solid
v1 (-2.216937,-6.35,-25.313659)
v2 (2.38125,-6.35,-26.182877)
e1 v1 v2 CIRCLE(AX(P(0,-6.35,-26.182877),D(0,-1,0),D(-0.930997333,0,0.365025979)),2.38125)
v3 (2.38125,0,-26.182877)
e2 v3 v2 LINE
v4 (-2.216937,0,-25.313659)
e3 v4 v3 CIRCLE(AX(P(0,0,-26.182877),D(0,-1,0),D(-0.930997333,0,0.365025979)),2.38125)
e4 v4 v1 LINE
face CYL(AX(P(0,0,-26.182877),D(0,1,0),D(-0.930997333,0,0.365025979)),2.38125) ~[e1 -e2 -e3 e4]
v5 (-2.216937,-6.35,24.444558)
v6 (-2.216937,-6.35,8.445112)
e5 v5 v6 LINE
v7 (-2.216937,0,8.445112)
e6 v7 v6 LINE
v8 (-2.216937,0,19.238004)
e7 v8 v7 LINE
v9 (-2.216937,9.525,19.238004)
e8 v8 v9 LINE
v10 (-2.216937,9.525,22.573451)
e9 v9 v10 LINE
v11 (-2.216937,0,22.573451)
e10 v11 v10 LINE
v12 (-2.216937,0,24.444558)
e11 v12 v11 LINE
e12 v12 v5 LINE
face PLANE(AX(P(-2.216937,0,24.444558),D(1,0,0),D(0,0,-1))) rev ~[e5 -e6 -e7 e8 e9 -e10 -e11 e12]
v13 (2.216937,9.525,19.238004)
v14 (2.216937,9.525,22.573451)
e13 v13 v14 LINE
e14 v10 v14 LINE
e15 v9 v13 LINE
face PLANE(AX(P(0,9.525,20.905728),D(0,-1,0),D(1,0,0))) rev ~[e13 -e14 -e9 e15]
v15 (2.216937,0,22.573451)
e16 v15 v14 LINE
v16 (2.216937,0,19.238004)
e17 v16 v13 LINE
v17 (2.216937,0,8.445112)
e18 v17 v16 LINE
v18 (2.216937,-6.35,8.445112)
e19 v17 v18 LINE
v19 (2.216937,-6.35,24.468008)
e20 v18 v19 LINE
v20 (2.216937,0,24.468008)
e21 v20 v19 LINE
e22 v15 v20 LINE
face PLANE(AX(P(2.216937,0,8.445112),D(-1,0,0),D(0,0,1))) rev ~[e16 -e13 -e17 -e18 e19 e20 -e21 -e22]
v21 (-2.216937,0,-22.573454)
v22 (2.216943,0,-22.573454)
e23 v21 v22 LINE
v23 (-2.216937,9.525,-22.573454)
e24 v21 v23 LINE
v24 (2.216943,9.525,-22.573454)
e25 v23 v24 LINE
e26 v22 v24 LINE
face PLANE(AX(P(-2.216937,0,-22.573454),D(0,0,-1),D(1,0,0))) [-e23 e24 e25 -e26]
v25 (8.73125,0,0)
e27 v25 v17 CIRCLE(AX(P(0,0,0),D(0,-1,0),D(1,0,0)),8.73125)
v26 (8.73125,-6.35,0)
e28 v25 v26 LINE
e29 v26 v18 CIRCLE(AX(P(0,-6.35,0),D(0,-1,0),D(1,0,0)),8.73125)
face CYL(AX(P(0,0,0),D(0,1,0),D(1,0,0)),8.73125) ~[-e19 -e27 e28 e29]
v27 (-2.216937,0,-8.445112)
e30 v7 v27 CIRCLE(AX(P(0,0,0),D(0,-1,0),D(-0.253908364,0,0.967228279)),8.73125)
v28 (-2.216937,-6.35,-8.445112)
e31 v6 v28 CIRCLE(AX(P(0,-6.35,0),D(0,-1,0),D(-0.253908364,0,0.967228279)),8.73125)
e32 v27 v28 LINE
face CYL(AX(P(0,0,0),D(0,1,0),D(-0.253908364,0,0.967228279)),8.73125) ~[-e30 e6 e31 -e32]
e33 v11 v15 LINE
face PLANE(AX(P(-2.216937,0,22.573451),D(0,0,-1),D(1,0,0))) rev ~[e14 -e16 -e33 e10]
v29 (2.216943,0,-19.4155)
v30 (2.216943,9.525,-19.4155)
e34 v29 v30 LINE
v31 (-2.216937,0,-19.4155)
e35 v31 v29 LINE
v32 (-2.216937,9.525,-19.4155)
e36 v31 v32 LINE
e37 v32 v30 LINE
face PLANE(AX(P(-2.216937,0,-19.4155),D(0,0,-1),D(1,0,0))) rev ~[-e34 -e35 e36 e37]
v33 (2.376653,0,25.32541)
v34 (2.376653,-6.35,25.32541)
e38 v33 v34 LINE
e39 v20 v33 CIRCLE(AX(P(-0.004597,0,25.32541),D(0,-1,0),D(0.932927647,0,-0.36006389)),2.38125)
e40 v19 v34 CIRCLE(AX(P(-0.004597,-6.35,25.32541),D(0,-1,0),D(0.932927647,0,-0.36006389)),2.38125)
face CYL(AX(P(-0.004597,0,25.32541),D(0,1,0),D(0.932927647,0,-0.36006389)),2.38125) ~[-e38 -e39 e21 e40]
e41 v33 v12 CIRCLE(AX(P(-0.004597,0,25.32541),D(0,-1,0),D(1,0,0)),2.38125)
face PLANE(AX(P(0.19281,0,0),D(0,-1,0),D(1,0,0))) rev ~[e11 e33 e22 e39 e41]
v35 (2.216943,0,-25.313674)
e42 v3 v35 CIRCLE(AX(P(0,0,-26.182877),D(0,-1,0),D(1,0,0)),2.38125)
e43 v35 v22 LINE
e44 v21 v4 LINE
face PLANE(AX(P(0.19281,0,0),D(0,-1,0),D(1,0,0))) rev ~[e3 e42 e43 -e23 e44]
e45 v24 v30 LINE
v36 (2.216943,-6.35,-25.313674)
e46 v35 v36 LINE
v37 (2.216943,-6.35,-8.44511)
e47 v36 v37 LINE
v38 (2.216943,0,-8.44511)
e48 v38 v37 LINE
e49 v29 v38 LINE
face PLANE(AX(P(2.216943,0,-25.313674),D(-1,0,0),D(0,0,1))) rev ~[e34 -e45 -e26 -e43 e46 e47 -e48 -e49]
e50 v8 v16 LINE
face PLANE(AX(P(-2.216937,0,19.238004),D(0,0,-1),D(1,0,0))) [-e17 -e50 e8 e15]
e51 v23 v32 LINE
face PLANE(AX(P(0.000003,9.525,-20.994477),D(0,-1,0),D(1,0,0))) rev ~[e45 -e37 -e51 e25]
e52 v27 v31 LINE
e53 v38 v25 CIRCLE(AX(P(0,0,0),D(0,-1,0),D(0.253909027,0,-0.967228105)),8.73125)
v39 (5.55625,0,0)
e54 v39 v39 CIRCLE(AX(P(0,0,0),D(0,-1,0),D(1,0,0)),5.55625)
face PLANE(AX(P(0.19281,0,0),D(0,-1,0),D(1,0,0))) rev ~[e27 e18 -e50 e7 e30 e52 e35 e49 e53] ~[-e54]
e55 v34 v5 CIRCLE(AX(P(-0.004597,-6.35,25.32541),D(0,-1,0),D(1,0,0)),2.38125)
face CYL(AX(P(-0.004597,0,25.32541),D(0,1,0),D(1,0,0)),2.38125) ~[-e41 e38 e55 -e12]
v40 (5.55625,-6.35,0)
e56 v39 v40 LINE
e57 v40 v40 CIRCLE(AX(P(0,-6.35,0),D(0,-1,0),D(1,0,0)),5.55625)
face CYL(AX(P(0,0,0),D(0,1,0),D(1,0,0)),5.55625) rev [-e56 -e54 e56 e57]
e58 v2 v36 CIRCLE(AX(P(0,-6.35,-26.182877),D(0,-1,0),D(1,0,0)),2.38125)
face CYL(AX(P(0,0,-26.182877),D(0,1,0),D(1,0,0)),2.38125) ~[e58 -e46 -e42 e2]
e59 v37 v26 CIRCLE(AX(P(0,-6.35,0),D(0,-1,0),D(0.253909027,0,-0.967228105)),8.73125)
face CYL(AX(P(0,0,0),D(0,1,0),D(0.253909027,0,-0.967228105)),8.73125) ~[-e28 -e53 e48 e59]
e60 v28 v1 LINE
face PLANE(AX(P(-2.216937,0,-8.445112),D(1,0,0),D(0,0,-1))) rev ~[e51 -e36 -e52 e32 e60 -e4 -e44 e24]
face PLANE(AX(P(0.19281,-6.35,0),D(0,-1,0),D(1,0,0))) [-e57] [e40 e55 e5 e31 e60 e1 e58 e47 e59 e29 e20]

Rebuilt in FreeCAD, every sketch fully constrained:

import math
import FreeCAD as App
import Part
import Sketcher
Q = App.Units.Quantity

doc = App.newDocument("Part")
body = doc.addObject("PartDesign::Body", "Body")

# Sketch on XZ plane
sketch1 = doc.addObject("Sketcher::SketchObject", "Sketch")
body.addObject(sketch1)
sketch1.AttachmentSupport = (doc.XZ_Plane, [""])
sketch1.MapMode = "FlatFace"
sketch1.addGeometry(Part.ArcOfCircle(Part.Circle(App.Vector(0, 0, 0), App.Vector(0, 0, 1), 8.7), math.radians(-75), math.radians(0)), False)
sketch1.addGeometry(Part.ArcOfCircle(Part.Circle(App.Vector(0, 0, 0), App.Vector(0, 0, 1), 8.7), math.radians(0), math.radians(75)), False)
sketch1.addGeometry(Part.LineSegment(App.Vector(2.2, 8.4, 0), App.Vector(2.2, 24.5, 0)), False)
sketch1.addGeometry(Part.ArcOfCircle(Part.Circle(App.Vector(0, 25.3, 0), App.Vector(0, 0, 1), 2.4), math.radians(-21), math.radians(0)), False)
sketch1.addGeometry(Part.ArcOfCircle(Part.Circle(App.Vector(0, 25.3, 0), App.Vector(0, 0, 1), 2.4), math.radians(0), math.radians(202)), False)
sketch1.addGeometry(Part.LineSegment(App.Vector(-2.2, 24.4, 0), App.Vector(-2.2, 8.4, 0)), False)
sketch1.addGeometry(Part.ArcOfCircle(Part.Circle(App.Vector(0, 0, 0), App.Vector(0, 0, 1), 8.7), math.radians(105), math.radians(255)), False)
sketch1.addGeometry(Part.LineSegment(App.Vector(-2.2, -8.4, 0), App.Vector(-2.2, -25.3, 0)), False)
sketch1.addGeometry(Part.ArcOfCircle(Part.Circle(App.Vector(0, -26.2, 0), App.Vector(0, 0, 1), 2.4), math.radians(159), math.radians(360)), False)
sketch1.addGeometry(Part.ArcOfCircle(Part.Circle(App.Vector(0, -26.2, 0), App.Vector(0, 0, 1), 2.4), math.radians(0), math.radians(21)), False)
sketch1.addGeometry(Part.LineSegment(App.Vector(2.2, -25.3, 0), App.Vector(2.2, -8.4, 0)), False)
sketch1.addGeometry(Part.Circle(App.Vector(0, 0, 0), App.Vector(0, 0, 1), 5.6), False)
sketch1.addConstraint(Sketcher.Constraint("Tangent", 0, 2, 1, 1))
sketch1.addConstraint(Sketcher.Constraint("Coincident", 1, 2, 2, 1))
sketch1.addConstraint(Sketcher.Constraint("Coincident", 2, 2, 3, 1))
sketch1.addConstraint(Sketcher.Constraint("Tangent", 3, 2, 4, 1))
sketch1.addConstraint(Sketcher.Constraint("Coincident", 4, 2, 5, 1))
sketch1.addConstraint(Sketcher.Constraint("Coincident", 5, 2, 6, 1))
sketch1.addConstraint(Sketcher.Constraint("Coincident", 6, 2, 7, 1))
sketch1.addConstraint(Sketcher.Constraint("Coincident", 7, 2, 8, 1))
sketch1.addConstraint(Sketcher.Constraint("Tangent", 8, 2, 9, 1))
sketch1.addConstraint(Sketcher.Constraint("Coincident", 9, 2, 10, 1))
sketch1.addConstraint(Sketcher.Constraint("Coincident", 10, 2, 0, 1))
sketch1.addConstraint(Sketcher.Constraint("Vertical", 2))
sketch1.addConstraint(Sketcher.Constraint("Vertical", 5))
sketch1.addConstraint(Sketcher.Constraint("Vertical", 7))
sketch1.addConstraint(Sketcher.Constraint("Vertical", 10))
sketch1.addConstraint(Sketcher.Constraint("Coincident", 0, 3, -1, 1))
sketch1.addConstraint(Sketcher.Constraint("Coincident", 6, 3, -1, 1))
sketch1.addConstraint(Sketcher.Constraint("Coincident", 11, 3, -1, 1))
sketch1.addConstraint(Sketcher.Constraint("Equal", 0, 1))
sketch1.addConstraint(Sketcher.Constraint("Equal", 3, 4))
sketch1.addConstraint(Sketcher.Constraint("Equal", 1, 6))
sketch1.addConstraint(Sketcher.Constraint("Equal", 4, 8))
sketch1.addConstraint(Sketcher.Constraint("Equal", 8, 9))
sketch1.addConstraint(Sketcher.Constraint("PointOnObject", 8, 3, -2))
sketch1.addConstraint(Sketcher.Constraint("PointOnObject", 0, 2, -1))
sketch1.addConstraint(Sketcher.Constraint("Horizontal", 4, 3, 3, 2))
sketch1.addConstraint(Sketcher.Constraint("Horizontal", 1, 2, 5, 2))
sketch1.addConstraint(Sketcher.Constraint("Horizontal", 9, 3, 8, 2))
sketch1.addConstraint(Sketcher.Constraint("Horizontal", 6, 2, 10, 2))
sketch1.addConstraint(Sketcher.Constraint("Vertical", 5, 2, 6, 2))
sketch1.addConstraint(Sketcher.Constraint("Diameter", 11, Q("0.4375 in")))
sketch1.addConstraint(Sketcher.Constraint("Radius", 0, Q("0.34375 in")))
sketch1.addConstraint(Sketcher.Constraint("Radius", 3, Q("0.09375 in")))
sketch1.addConstraint(Sketcher.Constraint("DistanceX", 4, 2, 4, 3, Q("0.0871 in")))
sketch1.addConstraint(Sketcher.Constraint("DistanceY", 2, 1, 2, 2, Q("16.022896 mm")))
sketch1.addConstraint(Sketcher.Constraint("DistanceY", 5, 2, 5, 1, Q("15.999446 mm")))
sketch1.addConstraint(Sketcher.Constraint("DistanceY", 7, 2, 7, 1, Q("16.868547 mm")))
pad1 = doc.addObject("PartDesign::Pad", "Pad")
body.addObject(pad1)
pad1.Profile = sketch1
pad1.Length = Q("0.25 in")

# Sketch on XZ plane
sketch2 = doc.addObject("Sketcher::SketchObject", "Sketch001")
body.addObject(sketch2)
sketch2.AttachmentSupport = (doc.XZ_Plane, [""])
sketch2.MapMode = "FlatFace"
sketch2.addGeometry(Part.LineSegment(App.Vector(-2.2, 22.6, 0), App.Vector(-2.2, 19.2, 0)), False)
sketch2.addGeometry(Part.LineSegment(App.Vector(-2.2, 19.2, 0), App.Vector(2.2, 19.2, 0)), False)
sketch2.addGeometry(Part.LineSegment(App.Vector(2.2, 19.2, 0), App.Vector(2.2, 22.6, 0)), False)
sketch2.addGeometry(Part.LineSegment(App.Vector(2.2, 22.6, 0), App.Vector(-2.2, 22.6, 0)), False)
sketch2.addGeometry(Part.LineSegment(App.Vector(-2.2, -19.4, 0), App.Vector(-2.2, -22.6, 0)), False)
sketch2.addGeometry(Part.LineSegment(App.Vector(-2.2, -22.6, 0), App.Vector(2.2, -22.6, 0)), False)
sketch2.addGeometry(Part.LineSegment(App.Vector(2.2, -22.6, 0), App.Vector(2.2, -19.4, 0)), False)
sketch2.addGeometry(Part.LineSegment(App.Vector(2.2, -19.4, 0), App.Vector(-2.2, -19.4, 0)), False)
sketch2.addConstraint(Sketcher.Constraint("Coincident", 0, 2, 1, 1))
sketch2.addConstraint(Sketcher.Constraint("Coincident", 1, 2, 2, 1))
sketch2.addConstraint(Sketcher.Constraint("Coincident", 2, 2, 3, 1))
sketch2.addConstraint(Sketcher.Constraint("Coincident", 3, 2, 0, 1))
sketch2.addConstraint(Sketcher.Constraint("Coincident", 4, 2, 5, 1))
sketch2.addConstraint(Sketcher.Constraint("Coincident", 5, 2, 6, 1))
sketch2.addConstraint(Sketcher.Constraint("Coincident", 6, 2, 7, 1))
sketch2.addConstraint(Sketcher.Constraint("Coincident", 7, 2, 4, 1))
sketch2.addConstraint(Sketcher.Constraint("Vertical", 0))
sketch2.addConstraint(Sketcher.Constraint("Horizontal", 1))
sketch2.addConstraint(Sketcher.Constraint("Vertical", 2))
sketch2.addConstraint(Sketcher.Constraint("Horizontal", 3))
sketch2.addConstraint(Sketcher.Constraint("Vertical", 4))
sketch2.addConstraint(Sketcher.Constraint("Horizontal", 5))
sketch2.addConstraint(Sketcher.Constraint("Vertical", 6))
sketch2.addConstraint(Sketcher.Constraint("Horizontal", 7))
sketch2.addConstraint(Sketcher.Constraint("Symmetric", 2, 2, 4, 2, -1, 1))
sketch2.addConstraint(Sketcher.Constraint("Vertical", 3, 2, 4, 2))
sketch2.addConstraint(Sketcher.Constraint("DistanceX", 5, 1, 5, 2, Q("4.433881 mm")))
sketch2.addConstraint(Sketcher.Constraint("DistanceY", 6, 2, -1, 1, Q("19.4155 mm")))
sketch2.addConstraint(Sketcher.Constraint("DistanceX", 1, 1, 1, 2, Q("4.433875 mm")))
sketch2.addConstraint(Sketcher.Constraint("DistanceY", 0, 2, 0, 1, Q("3.335446 mm")))
sketch2.addConstraint(Sketcher.Constraint("DistanceY", 4, 2, 4, 1, Q("3.157953 mm")))
pad2 = doc.addObject("PartDesign::Pad", "Pad001")
body.addObject(pad2)
pad2.Profile = sketch2
pad2.Length = Q("0.375 in")
pad2.Reversed = True

doc.recompute()
